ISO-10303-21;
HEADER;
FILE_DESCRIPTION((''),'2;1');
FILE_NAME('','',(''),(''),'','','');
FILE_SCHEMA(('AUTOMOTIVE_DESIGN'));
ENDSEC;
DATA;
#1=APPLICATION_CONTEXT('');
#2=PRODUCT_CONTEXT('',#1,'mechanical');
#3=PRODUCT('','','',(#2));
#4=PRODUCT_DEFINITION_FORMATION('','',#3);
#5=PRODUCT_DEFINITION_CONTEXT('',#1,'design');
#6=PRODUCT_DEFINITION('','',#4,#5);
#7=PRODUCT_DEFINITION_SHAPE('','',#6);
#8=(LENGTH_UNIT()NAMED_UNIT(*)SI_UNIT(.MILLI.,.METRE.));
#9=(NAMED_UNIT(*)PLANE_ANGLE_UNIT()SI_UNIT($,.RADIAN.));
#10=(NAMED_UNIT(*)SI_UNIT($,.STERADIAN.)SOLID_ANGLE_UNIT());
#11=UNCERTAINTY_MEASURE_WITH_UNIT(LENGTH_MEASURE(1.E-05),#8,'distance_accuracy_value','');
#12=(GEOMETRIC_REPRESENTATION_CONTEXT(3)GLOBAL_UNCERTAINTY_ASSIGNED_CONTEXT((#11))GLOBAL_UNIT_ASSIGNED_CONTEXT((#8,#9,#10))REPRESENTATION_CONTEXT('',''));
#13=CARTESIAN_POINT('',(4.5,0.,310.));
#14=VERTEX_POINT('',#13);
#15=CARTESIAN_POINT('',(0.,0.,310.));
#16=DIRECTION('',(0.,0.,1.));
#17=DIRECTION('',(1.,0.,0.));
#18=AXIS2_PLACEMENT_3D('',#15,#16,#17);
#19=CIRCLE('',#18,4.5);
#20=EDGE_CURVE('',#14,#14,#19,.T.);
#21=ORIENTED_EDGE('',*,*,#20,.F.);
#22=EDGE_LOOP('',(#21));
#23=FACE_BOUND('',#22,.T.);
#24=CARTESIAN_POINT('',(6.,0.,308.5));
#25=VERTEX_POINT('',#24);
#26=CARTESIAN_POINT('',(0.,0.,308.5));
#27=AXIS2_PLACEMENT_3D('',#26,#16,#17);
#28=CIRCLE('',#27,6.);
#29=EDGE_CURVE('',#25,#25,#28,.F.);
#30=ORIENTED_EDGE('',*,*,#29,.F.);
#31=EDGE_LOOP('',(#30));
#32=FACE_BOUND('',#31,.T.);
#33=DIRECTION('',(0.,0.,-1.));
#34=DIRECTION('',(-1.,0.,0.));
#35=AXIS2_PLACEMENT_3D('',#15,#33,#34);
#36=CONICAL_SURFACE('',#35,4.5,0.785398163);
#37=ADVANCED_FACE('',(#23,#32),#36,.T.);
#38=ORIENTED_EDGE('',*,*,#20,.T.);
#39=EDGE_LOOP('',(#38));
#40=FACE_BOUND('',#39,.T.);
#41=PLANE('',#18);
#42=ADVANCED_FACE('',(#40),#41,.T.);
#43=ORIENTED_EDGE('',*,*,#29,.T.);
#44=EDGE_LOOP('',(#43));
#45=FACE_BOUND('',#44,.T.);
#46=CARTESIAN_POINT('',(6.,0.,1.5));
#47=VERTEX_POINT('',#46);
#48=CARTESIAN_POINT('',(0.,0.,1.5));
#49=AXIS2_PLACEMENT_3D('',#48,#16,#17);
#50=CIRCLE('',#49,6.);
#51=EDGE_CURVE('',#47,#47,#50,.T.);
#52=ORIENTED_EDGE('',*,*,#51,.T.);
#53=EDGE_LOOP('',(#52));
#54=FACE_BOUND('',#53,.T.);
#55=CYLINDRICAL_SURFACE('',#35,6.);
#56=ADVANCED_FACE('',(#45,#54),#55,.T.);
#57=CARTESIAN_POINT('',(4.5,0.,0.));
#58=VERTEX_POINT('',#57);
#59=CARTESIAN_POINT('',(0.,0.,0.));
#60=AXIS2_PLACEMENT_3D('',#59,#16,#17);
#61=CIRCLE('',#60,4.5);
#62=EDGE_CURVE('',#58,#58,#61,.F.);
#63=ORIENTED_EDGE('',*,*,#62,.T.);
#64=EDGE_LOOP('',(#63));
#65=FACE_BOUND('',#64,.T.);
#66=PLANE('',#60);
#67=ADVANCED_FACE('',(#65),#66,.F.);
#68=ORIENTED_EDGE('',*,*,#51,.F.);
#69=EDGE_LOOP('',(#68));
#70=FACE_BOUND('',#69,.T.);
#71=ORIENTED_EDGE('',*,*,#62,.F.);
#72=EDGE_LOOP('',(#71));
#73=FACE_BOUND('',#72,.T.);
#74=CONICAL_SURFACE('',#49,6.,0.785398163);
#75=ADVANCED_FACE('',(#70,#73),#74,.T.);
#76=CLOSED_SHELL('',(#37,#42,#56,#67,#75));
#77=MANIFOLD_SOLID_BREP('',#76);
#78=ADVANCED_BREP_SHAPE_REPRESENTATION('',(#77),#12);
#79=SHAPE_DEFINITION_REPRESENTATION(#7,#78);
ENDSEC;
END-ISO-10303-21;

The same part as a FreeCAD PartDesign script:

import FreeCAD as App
import Part
import Sketcher


def edges_at(feature, points):
    """Names of the edges that pass closest to the given points."""
    edges = feature.Shape.Edges
    near = lambda p: min(range(len(edges)), key=lambda i: edges[i].distToShape(Part.Vertex(*p))[0])
    return sorted({f"Edge{near(p) + 1}" for p in points})

doc = App.newDocument("Part")
body = doc.addObject("PartDesign::Body", "Body")

sketch1 = doc.addObject("Sketcher::SketchObject", "Sketch")
body.addObject(sketch1)
sketch1.AttachmentSupport = (doc.XY_Plane, [""])
sketch1.MapMode = "FlatFace"
sketch1.addGeometry(Part.Circle(App.Vector(0, 0, 0), App.Vector(0, 0, 1), 6), False)
sketch1.addConstraint(Sketcher.Constraint("Coincident", 0, 3, -1, 1))
sketch1.addConstraint(Sketcher.Constraint("Diameter", 0, 12.0))
pad1 = doc.addObject("PartDesign::Pad", "Pad")
body.addObject(pad1)
pad1.Profile = sketch1
pad1.Length = 310
doc.recompute()

chamfer = doc.addObject("PartDesign::Chamfer", "Chamfer")
body.addObject(chamfer)
chamfer.Base = (pad1, edges_at(pad1, [(-6, 0, 0), (-6, 0, 310)]))
chamfer.Size = 1.5

doc.recompute()
